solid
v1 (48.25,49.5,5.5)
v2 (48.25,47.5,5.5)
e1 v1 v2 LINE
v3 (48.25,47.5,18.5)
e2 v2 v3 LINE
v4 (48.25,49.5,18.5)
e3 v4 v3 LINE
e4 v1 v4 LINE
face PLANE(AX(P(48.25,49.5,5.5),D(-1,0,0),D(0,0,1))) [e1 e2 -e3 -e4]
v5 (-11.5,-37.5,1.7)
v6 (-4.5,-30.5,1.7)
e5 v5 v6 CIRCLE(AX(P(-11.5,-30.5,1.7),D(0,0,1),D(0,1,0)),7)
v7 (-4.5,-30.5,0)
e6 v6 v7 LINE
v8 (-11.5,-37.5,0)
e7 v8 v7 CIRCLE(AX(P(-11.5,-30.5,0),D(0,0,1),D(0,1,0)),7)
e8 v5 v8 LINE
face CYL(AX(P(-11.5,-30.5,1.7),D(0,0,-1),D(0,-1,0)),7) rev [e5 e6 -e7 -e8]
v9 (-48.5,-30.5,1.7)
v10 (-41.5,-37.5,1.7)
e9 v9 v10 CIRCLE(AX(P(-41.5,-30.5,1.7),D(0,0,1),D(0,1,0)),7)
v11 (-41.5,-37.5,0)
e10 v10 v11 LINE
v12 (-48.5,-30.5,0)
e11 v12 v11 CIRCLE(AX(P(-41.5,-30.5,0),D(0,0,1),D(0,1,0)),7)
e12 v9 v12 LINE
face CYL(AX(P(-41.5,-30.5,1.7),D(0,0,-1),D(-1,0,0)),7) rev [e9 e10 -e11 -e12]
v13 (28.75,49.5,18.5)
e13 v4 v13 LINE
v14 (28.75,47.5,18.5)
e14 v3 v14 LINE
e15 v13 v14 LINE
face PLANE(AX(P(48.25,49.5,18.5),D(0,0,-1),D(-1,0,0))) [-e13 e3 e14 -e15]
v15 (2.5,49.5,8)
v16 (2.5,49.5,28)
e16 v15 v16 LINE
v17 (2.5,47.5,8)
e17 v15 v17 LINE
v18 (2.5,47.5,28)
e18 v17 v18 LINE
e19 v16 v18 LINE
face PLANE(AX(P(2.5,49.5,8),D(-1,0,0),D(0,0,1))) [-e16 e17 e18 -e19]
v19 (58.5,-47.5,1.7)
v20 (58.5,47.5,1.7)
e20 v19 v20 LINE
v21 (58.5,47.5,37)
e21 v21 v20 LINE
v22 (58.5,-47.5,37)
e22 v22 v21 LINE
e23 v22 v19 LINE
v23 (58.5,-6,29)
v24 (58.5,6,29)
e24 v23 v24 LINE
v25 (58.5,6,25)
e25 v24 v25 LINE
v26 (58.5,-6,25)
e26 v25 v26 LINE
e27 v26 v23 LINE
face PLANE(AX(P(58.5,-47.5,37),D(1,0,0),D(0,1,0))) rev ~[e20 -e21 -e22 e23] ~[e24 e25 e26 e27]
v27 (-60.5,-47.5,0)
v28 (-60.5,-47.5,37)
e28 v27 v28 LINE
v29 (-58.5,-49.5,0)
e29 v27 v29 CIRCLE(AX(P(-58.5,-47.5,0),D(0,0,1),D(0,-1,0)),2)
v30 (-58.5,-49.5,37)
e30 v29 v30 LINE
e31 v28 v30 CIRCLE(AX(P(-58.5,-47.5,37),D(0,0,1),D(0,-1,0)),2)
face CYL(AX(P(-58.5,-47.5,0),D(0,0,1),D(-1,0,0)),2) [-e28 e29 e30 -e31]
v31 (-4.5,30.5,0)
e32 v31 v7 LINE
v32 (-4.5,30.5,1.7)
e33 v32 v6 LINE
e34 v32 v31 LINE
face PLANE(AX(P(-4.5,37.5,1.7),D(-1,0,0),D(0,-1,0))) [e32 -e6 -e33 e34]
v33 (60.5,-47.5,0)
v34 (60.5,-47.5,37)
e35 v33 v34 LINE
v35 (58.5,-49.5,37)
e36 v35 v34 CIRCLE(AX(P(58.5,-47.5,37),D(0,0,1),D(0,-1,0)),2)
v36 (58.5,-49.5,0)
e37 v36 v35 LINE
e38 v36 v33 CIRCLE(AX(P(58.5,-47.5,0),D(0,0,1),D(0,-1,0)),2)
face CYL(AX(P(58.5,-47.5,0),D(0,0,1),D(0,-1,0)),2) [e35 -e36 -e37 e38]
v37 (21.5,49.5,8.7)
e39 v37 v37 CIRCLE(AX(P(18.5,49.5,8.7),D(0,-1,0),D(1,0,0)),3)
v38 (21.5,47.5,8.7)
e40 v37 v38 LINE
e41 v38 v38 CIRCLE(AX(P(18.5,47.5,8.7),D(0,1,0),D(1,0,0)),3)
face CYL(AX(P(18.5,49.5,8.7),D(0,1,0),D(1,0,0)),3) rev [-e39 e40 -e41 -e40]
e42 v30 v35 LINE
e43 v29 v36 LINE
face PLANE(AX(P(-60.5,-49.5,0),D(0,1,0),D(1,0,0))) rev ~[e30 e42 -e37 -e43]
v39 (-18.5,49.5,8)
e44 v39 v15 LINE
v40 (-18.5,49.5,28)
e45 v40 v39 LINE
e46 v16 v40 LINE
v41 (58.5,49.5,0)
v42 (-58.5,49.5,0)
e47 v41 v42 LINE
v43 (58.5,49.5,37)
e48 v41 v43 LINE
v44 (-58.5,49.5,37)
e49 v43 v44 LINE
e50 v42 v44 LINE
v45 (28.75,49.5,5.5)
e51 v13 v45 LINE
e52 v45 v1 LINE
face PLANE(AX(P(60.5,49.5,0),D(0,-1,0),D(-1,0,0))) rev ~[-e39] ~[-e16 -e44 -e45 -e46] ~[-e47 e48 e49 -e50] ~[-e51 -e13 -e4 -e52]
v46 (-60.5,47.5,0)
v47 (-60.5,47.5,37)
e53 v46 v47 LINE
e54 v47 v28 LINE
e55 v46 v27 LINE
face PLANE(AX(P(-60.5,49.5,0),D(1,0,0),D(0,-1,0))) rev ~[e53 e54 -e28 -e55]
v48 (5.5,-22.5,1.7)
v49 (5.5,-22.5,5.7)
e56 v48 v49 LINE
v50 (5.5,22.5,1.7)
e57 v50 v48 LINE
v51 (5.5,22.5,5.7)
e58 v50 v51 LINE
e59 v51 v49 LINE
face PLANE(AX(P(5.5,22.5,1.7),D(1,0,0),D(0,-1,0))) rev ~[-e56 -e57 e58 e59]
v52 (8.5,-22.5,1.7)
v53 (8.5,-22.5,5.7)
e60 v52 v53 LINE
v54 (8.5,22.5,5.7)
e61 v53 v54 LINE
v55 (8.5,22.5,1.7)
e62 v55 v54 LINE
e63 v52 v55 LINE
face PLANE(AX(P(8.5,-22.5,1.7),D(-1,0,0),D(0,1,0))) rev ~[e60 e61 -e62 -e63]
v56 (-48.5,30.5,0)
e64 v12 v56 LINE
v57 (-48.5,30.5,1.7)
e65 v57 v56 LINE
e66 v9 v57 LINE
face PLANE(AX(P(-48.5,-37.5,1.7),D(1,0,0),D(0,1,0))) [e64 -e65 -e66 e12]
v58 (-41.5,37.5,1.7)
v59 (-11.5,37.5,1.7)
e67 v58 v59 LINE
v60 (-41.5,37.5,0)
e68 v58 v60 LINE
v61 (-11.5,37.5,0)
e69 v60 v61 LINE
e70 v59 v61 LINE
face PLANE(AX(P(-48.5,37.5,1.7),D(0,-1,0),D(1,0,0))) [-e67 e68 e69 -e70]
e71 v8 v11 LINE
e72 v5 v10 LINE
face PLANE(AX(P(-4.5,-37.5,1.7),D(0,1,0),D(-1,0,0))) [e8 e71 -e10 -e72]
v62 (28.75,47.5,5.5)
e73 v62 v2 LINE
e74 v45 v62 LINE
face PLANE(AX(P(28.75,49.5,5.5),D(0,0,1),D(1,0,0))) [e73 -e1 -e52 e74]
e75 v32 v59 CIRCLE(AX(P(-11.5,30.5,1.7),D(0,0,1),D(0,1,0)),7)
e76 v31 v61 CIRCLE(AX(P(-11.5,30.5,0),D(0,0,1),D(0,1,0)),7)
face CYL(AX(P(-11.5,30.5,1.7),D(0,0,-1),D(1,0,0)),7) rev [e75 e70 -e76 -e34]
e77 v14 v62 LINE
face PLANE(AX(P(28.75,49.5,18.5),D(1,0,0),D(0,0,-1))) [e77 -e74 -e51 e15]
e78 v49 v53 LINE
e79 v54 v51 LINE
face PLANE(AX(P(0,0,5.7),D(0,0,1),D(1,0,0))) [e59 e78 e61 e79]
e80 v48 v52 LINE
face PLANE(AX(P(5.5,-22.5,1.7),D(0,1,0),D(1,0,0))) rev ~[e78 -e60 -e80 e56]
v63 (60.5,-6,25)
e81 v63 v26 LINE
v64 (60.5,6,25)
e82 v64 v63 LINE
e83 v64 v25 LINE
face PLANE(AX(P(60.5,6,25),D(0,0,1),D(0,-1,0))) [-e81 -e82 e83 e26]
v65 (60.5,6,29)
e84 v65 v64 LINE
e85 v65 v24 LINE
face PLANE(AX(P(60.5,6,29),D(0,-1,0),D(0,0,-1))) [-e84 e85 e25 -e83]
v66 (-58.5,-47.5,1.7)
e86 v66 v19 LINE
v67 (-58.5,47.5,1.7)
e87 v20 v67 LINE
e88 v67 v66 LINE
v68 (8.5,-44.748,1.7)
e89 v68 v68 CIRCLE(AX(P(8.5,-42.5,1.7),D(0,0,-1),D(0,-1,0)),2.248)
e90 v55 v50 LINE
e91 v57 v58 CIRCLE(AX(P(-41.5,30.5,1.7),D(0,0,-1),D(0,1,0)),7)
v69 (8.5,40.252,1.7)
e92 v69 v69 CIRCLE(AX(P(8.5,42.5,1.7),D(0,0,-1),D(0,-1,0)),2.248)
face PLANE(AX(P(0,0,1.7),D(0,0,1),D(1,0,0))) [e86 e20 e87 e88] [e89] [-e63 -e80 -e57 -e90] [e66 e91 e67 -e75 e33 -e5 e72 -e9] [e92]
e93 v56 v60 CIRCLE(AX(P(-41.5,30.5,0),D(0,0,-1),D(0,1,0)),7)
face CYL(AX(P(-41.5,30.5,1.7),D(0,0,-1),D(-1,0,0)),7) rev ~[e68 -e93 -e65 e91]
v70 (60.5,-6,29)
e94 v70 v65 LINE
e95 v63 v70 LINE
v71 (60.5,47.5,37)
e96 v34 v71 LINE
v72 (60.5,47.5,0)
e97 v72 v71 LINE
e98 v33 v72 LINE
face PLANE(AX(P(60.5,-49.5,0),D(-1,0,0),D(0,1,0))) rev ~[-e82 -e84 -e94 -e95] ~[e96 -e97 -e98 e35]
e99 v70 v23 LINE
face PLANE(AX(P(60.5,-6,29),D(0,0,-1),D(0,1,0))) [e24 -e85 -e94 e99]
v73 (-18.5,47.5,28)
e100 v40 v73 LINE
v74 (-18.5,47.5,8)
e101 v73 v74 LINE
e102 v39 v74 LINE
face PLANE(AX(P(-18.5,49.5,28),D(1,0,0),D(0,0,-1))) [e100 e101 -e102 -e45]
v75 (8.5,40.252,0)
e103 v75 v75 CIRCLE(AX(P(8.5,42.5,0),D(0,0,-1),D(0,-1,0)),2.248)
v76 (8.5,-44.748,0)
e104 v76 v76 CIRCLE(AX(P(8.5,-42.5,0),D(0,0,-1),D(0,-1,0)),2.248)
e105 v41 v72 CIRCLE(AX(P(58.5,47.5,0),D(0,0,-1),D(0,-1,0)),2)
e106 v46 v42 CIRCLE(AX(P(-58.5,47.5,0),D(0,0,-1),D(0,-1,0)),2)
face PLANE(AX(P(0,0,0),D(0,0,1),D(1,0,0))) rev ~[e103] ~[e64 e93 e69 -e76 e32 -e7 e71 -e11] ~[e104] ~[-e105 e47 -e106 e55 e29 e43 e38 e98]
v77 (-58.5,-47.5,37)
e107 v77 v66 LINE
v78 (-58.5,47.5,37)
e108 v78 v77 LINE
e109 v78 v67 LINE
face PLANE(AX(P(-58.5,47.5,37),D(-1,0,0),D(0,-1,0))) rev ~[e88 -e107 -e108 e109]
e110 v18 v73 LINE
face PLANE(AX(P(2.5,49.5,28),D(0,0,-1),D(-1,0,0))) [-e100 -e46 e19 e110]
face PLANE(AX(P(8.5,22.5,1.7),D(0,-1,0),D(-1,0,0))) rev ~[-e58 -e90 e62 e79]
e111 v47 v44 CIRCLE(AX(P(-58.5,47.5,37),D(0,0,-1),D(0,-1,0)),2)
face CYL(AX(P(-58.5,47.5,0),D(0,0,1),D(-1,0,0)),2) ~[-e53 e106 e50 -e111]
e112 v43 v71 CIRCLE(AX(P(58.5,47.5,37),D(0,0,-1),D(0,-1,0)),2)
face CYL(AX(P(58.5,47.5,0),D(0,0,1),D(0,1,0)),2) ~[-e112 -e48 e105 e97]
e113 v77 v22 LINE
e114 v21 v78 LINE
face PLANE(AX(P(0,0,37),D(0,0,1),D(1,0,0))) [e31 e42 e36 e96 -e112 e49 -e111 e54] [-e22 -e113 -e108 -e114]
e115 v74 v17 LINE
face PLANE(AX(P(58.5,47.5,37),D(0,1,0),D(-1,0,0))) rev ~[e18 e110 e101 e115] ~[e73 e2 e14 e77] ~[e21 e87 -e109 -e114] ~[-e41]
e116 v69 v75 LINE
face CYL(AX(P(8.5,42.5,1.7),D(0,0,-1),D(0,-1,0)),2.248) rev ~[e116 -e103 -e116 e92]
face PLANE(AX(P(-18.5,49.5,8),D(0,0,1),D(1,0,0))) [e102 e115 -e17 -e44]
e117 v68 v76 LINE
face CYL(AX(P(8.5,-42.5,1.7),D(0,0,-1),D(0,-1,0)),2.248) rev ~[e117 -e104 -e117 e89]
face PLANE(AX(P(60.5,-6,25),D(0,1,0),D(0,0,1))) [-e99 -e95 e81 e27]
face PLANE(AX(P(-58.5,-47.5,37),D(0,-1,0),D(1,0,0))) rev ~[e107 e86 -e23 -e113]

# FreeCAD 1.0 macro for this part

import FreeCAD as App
import Part
import Sketcher
from FreeCAD import Vector
Q = App.Units.Quantity


def edges_at(feature, points):
    """Names of the edges that pass closest to the given points."""
    edges = feature.Shape.Edges
    near = lambda p: min(range(len(edges)), key=lambda i: edges[i].distToShape(Part.Vertex(*p))[0])
    return sorted({f"Edge{near(p) + 1}" for p in points})

doc = App.newDocument("Part")
body = doc.addObject("PartDesign::Body", "Body")

sketch1 = doc.addObject("Sketcher::SketchObject", "Sketch")
body.addObject(sketch1)
sketch1.AttachmentSupport = (doc.XY_Plane, [""])
sketch1.MapMode = "FlatFace"
sketch1.addGeometry([
    Part.LineSegment(Vector(-60, 50, 0), Vector(-60, -50, 0)),
    Part.LineSegment(Vector(-60, -50, 0), Vector(60, -50, 0)),
    Part.LineSegment(Vector(60, -50, 0), Vector(60, 50, 0)),
    Part.LineSegment(Vector(60, 50, 0), Vector(-60, 50, 0)),
], False)
sketch1.addConstraint([
    Sketcher.Constraint("Coincident", 0, 2, 1, 1),
    Sketcher.Constraint("Coincident", 1, 2, 2, 1),
    Sketcher.Constraint("Coincident", 2, 2, 3, 1),
    Sketcher.Constraint("Coincident", 3, 2, 0, 1),
    Sketcher.Constraint("Vertical", 0),
    Sketcher.Constraint("Horizontal", 1),
    Sketcher.Constraint("Vertical", 2),
    Sketcher.Constraint("Horizontal", 3),
    Sketcher.Constraint("Symmetric", 0, 2, 2, 2, -1, 1),
    Sketcher.Constraint("DistanceX", 1, 1, 1, 2, Q("121 mm")),
    Sketcher.Constraint("DistanceY", 0, 2, 0, 1, Q("99 mm")),
])
pad1 = doc.addObject("PartDesign::Pad", "Pad")
body.addObject(pad1)
pad1.Profile = sketch1
pad1.Length = 37

sketch2 = doc.addObject("Sketcher::SketchObject", "Sketch001")
body.addObject(sketch2)
sketch2.AttachmentSupport = (doc.XY_Plane, [""])
sketch2.MapMode = "FlatFace"
sketch2.AttachmentOffset = App.Placement(Vector(0, 0, 37), App.Rotation())
sketch2.addGeometry([
    Part.LineSegment(Vector(-58, 48, 0), Vector(-58, -48, 0)),
    Part.LineSegment(Vector(-58, -48, 0), Vector(58, -48, 0)),
    Part.LineSegment(Vector(58, -48, 0), Vector(58, 48, 0)),
    Part.LineSegment(Vector(58, 48, 0), Vector(-58, 48, 0)),
], False)
sketch2.addConstraint([
    Sketcher.Constraint("Coincident", 0, 2, 1, 1),
    Sketcher.Constraint("Coincident", 1, 2, 2, 1),
    Sketcher.Constraint("Coincident", 2, 2, 3, 1),
    Sketcher.Constraint("Coincident", 3, 2, 0, 1),
    Sketcher.Constraint("Vertical", 0),
    Sketcher.Constraint("Horizontal", 1),
    Sketcher.Constraint("Vertical", 2),
    Sketcher.Constraint("Horizontal", 3),
    Sketcher.Constraint("Symmetric", 0, 2, 2, 2, -1, 1),
    Sketcher.Constraint("DistanceX", 1, 1, 1, 2, Q("117 mm")),
    Sketcher.Constraint("DistanceY", 0, 2, 0, 1, Q("95 mm")),
])
pocket1 = doc.addObject("PartDesign::Pocket", "Pocket")
body.addObject(pocket1)
pocket1.Profile = sketch2
pocket1.Length = 35.3

sketch3 = doc.addObject("Sketcher::SketchObject", "Sketch002")
body.addObject(sketch3)
sketch3.AttachmentSupport = (doc.XY_Plane, [""])
sketch3.MapMode = "FlatFace"
sketch3.AttachmentOffset = App.Placement(Vector(0, 0, 1.7), App.Rotation())
sketch3.addGeometry([
    Part.LineSegment(Vector(5.5, 22.5, 0), Vector(5.5, -22.5, 0)),
    Part.LineSegment(Vector(5.5, -22.5, 0), Vector(8.5, -22.5, 0)),
    Part.LineSegment(Vector(8.5, -22.5, 0), Vector(8.5, 22.5, 0)),
    Part.LineSegment(Vector(8.5, 22.5, 0), Vector(5.5, 22.5, 0)),
], False)
sketch3.addConstraint([
    Sketcher.Constraint("Coincident", 0, 2, 1, 1),
    Sketcher.Constraint("Coincident", 1, 2, 2, 1),
    Sketcher.Constraint("Coincident", 2, 2, 3, 1),
    Sketcher.Constraint("Coincident", 3, 2, 0, 1),
    Sketcher.Constraint("Vertical", 0),
    Sketcher.Constraint("Horizontal", 1),
    Sketcher.Constraint("Vertical", 2),
    Sketcher.Constraint("Horizontal", 3),
    Sketcher.Constraint("DistanceX", 1, 1, 1, 2, Q("3 mm")),
    Sketcher.Constraint("DistanceY", 0, 2, 0, 1, Q("45 mm")),
    Sketcher.Constraint("DistanceX", -1, 1, 0, 2, Q("5.5 mm")),
    Sketcher.Constraint("DistanceY", 0, 2, -1, 1, Q("22.5 mm")),
])
pad2 = doc.addObject("PartDesign::Pad", "Pad001")
body.addObject(pad2)
pad2.Profile = sketch3
pad2.Length = 4

sketch4 = doc.addObject("Sketcher::SketchObject", "Sketch003")
body.addObject(sketch4)
sketch4.AttachmentSupport = (doc.XZ_Plane, [""])
sketch4.MapMode = "FlatFace"
sketch4.AttachmentOffset = App.Placement(Vector(0, 0, -49.5), App.Rotation())
sketch4.addGeometry(Part.Circle(Vector(18.5, 8.7, 0), Vector(0, 0, 1), 3), False)
sketch4.addConstraint([
    Sketcher.Constraint("Diameter", 0, Q("6 mm")),
    Sketcher.Constraint("DistanceX", -1, 1, 0, 3, Q("18.5 mm")),
    Sketcher.Constraint("DistanceY", -1, 1, 0, 3, Q("8.7 mm")),
])
pocket2 = doc.addObject("PartDesign::Pocket", "Pocket001")
body.addObject(pocket2)
pocket2.Profile = sketch4
pocket2.Length = 4
pocket2.Reversed = True

sketch5 = doc.addObject("Sketcher::SketchObject", "Sketch004")
body.addObject(sketch5)
sketch5.AttachmentSupport = (doc.XZ_Plane, [""])
sketch5.MapMode = "FlatFace"
sketch5.AttachmentOffset = App.Placement(Vector(0, 0, -49.5), App.Rotation())
sketch5.addGeometry([
    Part.LineSegment(Vector(29, 18, 0), Vector(29, 6, 0)),
    Part.LineSegment(Vector(29, 6, 0), Vector(48, 6, 0)),
    Part.LineSegment(Vector(48, 6, 0), Vector(48, 18, 0)),
    Part.LineSegment(Vector(48, 18, 0), Vector(29, 18, 0)),
], False)
sketch5.addConstraint([
    Sketcher.Constraint("Coincident", 0, 2, 1, 1),
    Sketcher.Constraint("Coincident", 1, 2, 2, 1),
    Sketcher.Constraint("Coincident", 2, 2, 3, 1),
    Sketcher.Constraint("Coincident", 3, 2, 0, 1),
    Sketcher.Constraint("Vertical", 0),
    Sketcher.Constraint("Horizontal", 1),
    Sketcher.Constraint("Vertical", 2),
    Sketcher.Constraint("Horizontal", 3),
    Sketcher.Constraint("DistanceY", 0, 2, 0, 1, Q("13 mm")),
    Sketcher.Constraint("DistanceX", 1, 1, 1, 2, Q("19.5 mm")),
    Sketcher.Constraint("DistanceY", -1, 1, 0, 2, Q("5.5 mm")),
    Sketcher.Constraint("DistanceX", -1, 1, 0, 2, Q("28.75 mm")),
])
pocket3 = doc.addObject("PartDesign::Pocket", "Pocket002")
body.addObject(pocket3)
pocket3.Profile = sketch5
pocket3.Length = 4
pocket3.Reversed = True

sketch6 = doc.addObject("Sketcher::SketchObject", "Sketch005")
body.addObject(sketch6)
sketch6.AttachmentSupport = (doc.YZ_Plane, [""])
sketch6.MapMode = "FlatFace"
sketch6.AttachmentOffset = App.Placement(Vector(0, 0, 60.5), App.Rotation())
sketch6.addGeometry([
    Part.LineSegment(Vector(-6, 29, 0), Vector(-6, 25, 0)),
    Part.LineSegment(Vector(-6, 25, 0), Vector(6, 25, 0)),
    Part.LineSegment(Vector(6, 25, 0), Vector(6, 29, 0)),
    Part.LineSegment(Vector(6, 29, 0), Vector(-6, 29, 0)),
], False)
sketch6.addConstraint([
    Sketcher.Constraint("Coincident", 0, 2, 1, 1),
    Sketcher.Constraint("Coincident", 1, 2, 2, 1),
    Sketcher.Constraint("Coincident", 2, 2, 3, 1),
    Sketcher.Constraint("Coincident", 3, 2, 0, 1),
    Sketcher.Constraint("Vertical", 0),
    Sketcher.Constraint("Horizontal", 1),
    Sketcher.Constraint("Vertical", 2),
    Sketcher.Constraint("Horizontal", 3),
    Sketcher.Constraint("DistanceX", 1, 1, 1, 2, Q("12 mm")),
    Sketcher.Constraint("DistanceY", 0, 2, 0, 1, Q("4 mm")),
    Sketcher.Constraint("DistanceX", 0, 2, -1, 1, Q("6 mm")),
    Sketcher.Constraint("DistanceY", -1, 1, 0, 2, Q("25 mm")),
])
pocket4 = doc.addObject("PartDesign::Pocket", "Pocket003")
body.addObject(pocket4)
pocket4.Profile = sketch6
pocket4.Length = 10
doc.recompute()

fillet = doc.addObject("PartDesign::Fillet", "Fillet")
body.addObject(fillet)
fillet.Base = (pocket4, edges_at(pocket4, [
    (-60.5, -49.5, 18.5),
    (60.5, -49.5, 18.5),
    (60.5, 49.5, 18.5),
    (-60.5, 49.5, 18.5),
]))
fillet.Radius = 2

sketch7 = doc.addObject("Sketcher::SketchObject", "Sketch006")
body.addObject(sketch7)
sketch7.AttachmentSupport = (doc.XY_Plane, [""])
sketch7.MapMode = "FlatFace"
sketch7.AttachmentOffset = App.Placement(Vector(0, 0, 1.7), App.Rotation())
sketch7.addGeometry([
    Part.LineSegment(Vector(-4, 38, 0), Vector(-48, 38, 0)),
    Part.LineSegment(Vector(-48, 38, 0), Vector(-48, -38, 0)),
    Part.LineSegment(Vector(-48, -38, 0), Vector(-4, -38, 0)),
    Part.LineSegment(Vector(-4, -38, 0), Vector(-4, 38, 0)),
], False)
sketch7.addConstraint([
    Sketcher.Constraint("Coincident", 0, 2, 1, 1),
    Sketcher.Constraint("Coincident", 1, 2, 2, 1),
    Sketcher.Constraint("Coincident", 2, 2, 3, 1),
    Sketcher.Constraint("Coincident", 3, 2, 0, 1),
    Sketcher.Constraint("Horizontal", 0),
    Sketcher.Constraint("Vertical", 1),
    Sketcher.Constraint("Horizontal", 2),
    Sketcher.Constraint("Vertical", 3),
    Sketcher.Constraint("DistanceX", 0, 2, 0, 1, Q("44 mm")),
    Sketcher.Constraint("DistanceY", 1, 2, 1, 1, Q("75 mm")),
    Sketcher.Constraint("DistanceX", 0, 2, -1, 1, Q("48.5 mm")),
    Sketcher.Constraint("DistanceY", -1, 1, 0, 2, Q("37.5 mm")),
])
pocket5 = doc.addObject("PartDesign::Pocket", "Pocket004")
body.addObject(pocket5)
pocket5.Profile = sketch7
pocket5.Length = 10

sketch8 = doc.addObject("Sketcher::SketchObject", "Sketch007")
body.addObject(sketch8)
sketch8.AttachmentSupport = (doc.XZ_Plane, [""])
sketch8.MapMode = "FlatFace"
sketch8.AttachmentOffset = App.Placement(Vector(0, 0, -49.5), App.Rotation())
sketch8.addGeometry([
    Part.LineSegment(Vector(-18, 28, 0), Vector(2, 28, 0)),
    Part.LineSegment(Vector(2, 28, 0), Vector(2, 8, 0)),
    Part.LineSegment(Vector(2, 8, 0), Vector(-18, 8, 0)),
    Part.LineSegment(Vector(-18, 8, 0), Vector(-18, 28, 0)),
], False)
sketch8.addConstraint([
    Sketcher.Constraint("Coincident", 0, 2, 1, 1),
    Sketcher.Constraint("Coincident", 1, 2, 2, 1),
    Sketcher.Constraint("Coincident", 2, 2, 3, 1),
    Sketcher.Constraint("Coincident", 3, 2, 0, 1),
    Sketcher.Constraint("Horizontal", 0),
    Sketcher.Constraint("Vertical", 1),
    Sketcher.Constraint("Horizontal", 2),
    Sketcher.Constraint("Vertical", 3),
    Sketcher.Constraint("DistanceX", 0, 1, 0, 2, Q("21 mm")),
    Sketcher.Constraint("DistanceY", 1, 2, 1, 1, Q("20 mm")),
    Sketcher.Constraint("DistanceY", -1, 1, 1, 2, Q("8 mm")),
    Sketcher.Constraint("DistanceX", -1, 1, 0, 2, Q("2.5 mm")),
])
pocket6 = doc.addObject("PartDesign::Pocket", "Pocket005")
body.addObject(pocket6)
pocket6.Profile = sketch8
pocket6.Length = 10
pocket6.Reversed = True
doc.recompute()

fillet2 = doc.addObject("PartDesign::Fillet", "Fillet001")
body.addObject(fillet2)
fillet2.Base = (pocket6, edges_at(pocket6, [
    (-4.5, 37.5, 0.85),
    (-48.5, 37.5, 0.85),
    (-48.5, -37.5, 0.85),
    (-4.5, -37.5, 0.85),
]))
fillet2.Radius = 7

sketch9 = doc.addObject("Sketcher::SketchObject", "Sketch008")
body.addObject(sketch9)
sketch9.AttachmentSupport = (doc.XY_Plane, [""])
sketch9.MapMode = "FlatFace"
sketch9.AttachmentOffset = App.Placement(Vector(0, 0, 1.7), App.Rotation())
sketch9.addGeometry([
    Part.Circle(Vector(8.5, -42.5, 0), Vector(0, 0, 1), 2.2),
    Part.Circle(Vector(8.5, 42.5, 0), Vector(0, 0, 1), 2.2),
], False)
sketch9.addConstraint([
    Sketcher.Constraint("Equal", 0, 1),
    Sketcher.Constraint("Symmetric", 0, 3, 1, 3, -1),
    Sketcher.Constraint("Diameter", 0, Q("4.496 mm")),
    Sketcher.Constraint("DistanceY", 0, 3, 1, 3, Q("85 mm")),
    Sketcher.Constraint("DistanceX", -1, 1, 0, 3, Q("8.5 mm")),
])
doc.recompute()
hole = doc.addObject("PartDesign::Hole", "Hole")
body.addObject(hole)
hole.Profile = sketch9
hole.ThreadType = "None"
hole.Diameter = 4.496
hole.DepthType = "ThroughAll"

doc.recompute()
